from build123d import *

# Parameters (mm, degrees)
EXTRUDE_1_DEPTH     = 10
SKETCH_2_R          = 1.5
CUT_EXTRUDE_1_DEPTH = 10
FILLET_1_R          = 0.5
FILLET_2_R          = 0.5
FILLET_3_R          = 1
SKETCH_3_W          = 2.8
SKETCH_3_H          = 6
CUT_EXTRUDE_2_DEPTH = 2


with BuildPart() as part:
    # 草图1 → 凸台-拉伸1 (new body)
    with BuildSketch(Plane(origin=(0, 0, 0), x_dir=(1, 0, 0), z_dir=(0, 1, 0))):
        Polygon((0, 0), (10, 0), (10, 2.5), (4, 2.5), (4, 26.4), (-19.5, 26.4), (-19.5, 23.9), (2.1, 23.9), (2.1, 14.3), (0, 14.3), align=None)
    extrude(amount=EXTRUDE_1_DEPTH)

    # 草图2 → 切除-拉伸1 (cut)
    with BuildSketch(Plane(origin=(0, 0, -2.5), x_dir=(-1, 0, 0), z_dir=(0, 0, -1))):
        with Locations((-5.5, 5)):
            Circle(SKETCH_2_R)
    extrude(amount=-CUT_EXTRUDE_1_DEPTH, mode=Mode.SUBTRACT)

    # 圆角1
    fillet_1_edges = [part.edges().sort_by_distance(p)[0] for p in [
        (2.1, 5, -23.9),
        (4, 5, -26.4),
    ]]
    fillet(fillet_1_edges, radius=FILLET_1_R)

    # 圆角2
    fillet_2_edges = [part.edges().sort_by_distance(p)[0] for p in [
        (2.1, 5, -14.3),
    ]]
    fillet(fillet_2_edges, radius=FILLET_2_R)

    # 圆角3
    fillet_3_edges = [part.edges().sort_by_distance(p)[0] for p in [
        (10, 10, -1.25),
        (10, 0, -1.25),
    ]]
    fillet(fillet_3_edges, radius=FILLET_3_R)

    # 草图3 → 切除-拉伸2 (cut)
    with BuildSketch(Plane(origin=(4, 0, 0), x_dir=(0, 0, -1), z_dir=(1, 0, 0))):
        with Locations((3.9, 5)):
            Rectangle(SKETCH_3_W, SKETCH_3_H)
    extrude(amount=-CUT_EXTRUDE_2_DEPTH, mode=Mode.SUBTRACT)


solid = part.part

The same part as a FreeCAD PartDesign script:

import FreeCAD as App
import Part
import Sketcher
Q = App.Units.Quantity


def edges_at(feature, points):
    """Names of the edges that pass closest to the given points."""
    edges = feature.Shape.Edges
    near = lambda p: min(range(len(edges)), key=lambda i: edges[i].distToShape(Part.Vertex(*p))[0])
    return sorted({f"Edge{near(p) + 1}" for p in points})

doc = App.newDocument("Part")
body = doc.addObject("PartDesign::Body", "Body")

sketch1 = doc.addObject("Sketcher::SketchObject", "Sketch")
body.addObject(sketch1)
sketch1.AttachmentSupport = (doc.XZ_Plane, [""])
sketch1.MapMode = "FlatFace"
sketch1.addGeometry([
    Part.LineSegment(App.Vector(0, 0, 0), App.Vector(10, 0, 0)),
    Part.LineSegment(App.Vector(10, 0, 0), App.Vector(10, -2.5, 0)),
    Part.LineSegment(App.Vector(10, -2.5, 0), App.Vector(4, -2.5, 0)),
    Part.LineSegment(App.Vector(4, -2.5, 0), App.Vector(4, -26.4, 0)),
    Part.LineSegment(App.Vector(4, -26.4, 0), App.Vector(-19.5, -26.4, 0)),
    Part.LineSegment(App.Vector(-19.5, -26.4, 0), App.Vector(-19.5, -23.9, 0)),
    Part.LineSegment(App.Vector(-19.5, -23.9, 0), App.Vector(2.1, -23.9, 0)),
    Part.LineSegment(App.Vector(2.1, -23.9, 0), App.Vector(2.1, -14.3, 0)),
    Part.LineSegment(App.Vector(2.1, -14.3, 0), App.Vector(0, -14.3, 0)),
    Part.LineSegment(App.Vector(0, -14.3, 0), App.Vector(0, 0, 0)),
], False)
sketch1.addConstraint([
    Sketcher.Constraint("Coincident", 0, 2, 1, 1),
    Sketcher.Constraint("Coincident", 1, 2, 2, 1),
    Sketcher.Constraint("Coincident", 2, 2, 3, 1),
    Sketcher.Constraint("Coincident", 3, 2, 4, 1),
    Sketcher.Constraint("Coincident", 4, 2, 5, 1),
    Sketcher.Constraint("Coincident", 5, 2, 6, 1),
    Sketcher.Constraint("Coincident", 6, 2, 7, 1),
    Sketcher.Constraint("Coincident", 7, 2, 8, 1),
    Sketcher.Constraint("Coincident", 8, 2, 9, 1),
    Sketcher.Constraint("Coincident", 9, 2, 0, 1),
    Sketcher.Constraint("Horizontal", 0),
    Sketcher.Constraint("Vertical", 1),
    Sketcher.Constraint("Horizontal", 2),
    Sketcher.Constraint("Vertical", 3),
    Sketcher.Constraint("Horizontal", 4),
    Sketcher.Constraint("Vertical", 5),
    Sketcher.Constraint("Horizontal", 6),
    Sketcher.Constraint("Vertical", 7),
    Sketcher.Constraint("Horizontal", 8),
    Sketcher.Constraint("Vertical", 9),
    Sketcher.Constraint("Coincident", 9, 2, -1, 1),
    Sketcher.Constraint("Equal", 1, 5),
    Sketcher.Constraint("DistanceX", 0, 1, 0, 2, Q("10 mm")),
    Sketcher.Constraint("DistanceX", 2, 2, 2, 1, Q("6 mm")),
    Sketcher.Constraint("DistanceX", 4, 2, 4, 1, Q("23.5 mm")),
    Sketcher.Constraint("DistanceX", 6, 1, 6, 2, Q("21.6 mm")),
    Sketcher.Constraint("DistanceY", 1, 2, 1, 1, Q("2.5 mm")),
    Sketcher.Constraint("DistanceY", 3, 2, 3, 1, Q("23.9 mm")),
    Sketcher.Constraint("DistanceY", 7, 1, 7, 2, Q("9.6 mm")),
])
pad1 = doc.addObject("PartDesign::Pad", "Pad")
body.addObject(pad1)
pad1.Profile = sketch1
pad1.Length = 10
pad1.Reversed = True

sketch2 = doc.addObject("Sketcher::SketchObject", "Sketch001")
body.addObject(sketch2)
sketch2.AttachmentSupport = (doc.XY_Plane, [""])
sketch2.MapMode = "FlatFace"
sketch2.AttachmentOffset = App.Placement(App.Vector(0, 0, -2.5), App.Rotation())
sketch2.addGeometry(Part.Circle(App.Vector(5.5, 5, 0), App.Vector(0, 0, 1), 1.5), False)
sketch2.addConstraint([
    Sketcher.Constraint("Diameter", 0, Q("3 mm")),
    Sketcher.Constraint("DistanceY", -1, 1, 0, 3, Q("5 mm")),
    Sketcher.Constraint("DistanceX", -1, 1, 0, 3, Q("5.5 mm")),
])
pocket1 = doc.addObject("PartDesign::Pocket", "Pocket")
body.addObject(pocket1)
pocket1.Profile = sketch2
pocket1.Length = 10
pocket1.Reversed = True
doc.recompute()

fillet = doc.addObject("PartDesign::Fillet", "Fillet")
body.addObject(fillet)
fillet.Base = (pocket1, edges_at(pocket1, [(2.1, 5, -23.9), (4, 5, -26.4)]))
fillet.Radius = 0.5
doc.recompute()

fillet2 = doc.addObject("PartDesign::Fillet", "Fillet001")
body.addObject(fillet2)
fillet2.Base = (fillet, edges_at(fillet, [(2.1, 5, -14.3)]))
fillet2.Radius = 0.5
doc.recompute()

fillet3 = doc.addObject("PartDesign::Fillet", "Fillet002")
body.addObject(fillet3)
fillet3.Base = (fillet2, edges_at(fillet2, [(10, 10, -1.25), (10, 0, -1.25)]))
fillet3.Radius = 1

sketch3 = doc.addObject("Sketcher::SketchObject", "Sketch002")
body.addObject(sketch3)
sketch3.AttachmentSupport = (doc.YZ_Plane, [""])
sketch3.MapMode = "FlatFace"
sketch3.AttachmentOffset = App.Placement(App.Vector(0, 0, 4), App.Rotation())
sketch3.addGeometry([
    Part.LineSegment(App.Vector(8, -2.5, 0), App.Vector(2, -2.5, 0)),
    Part.LineSegment(App.Vector(2, -2.5, 0), App.Vector(2, -5.3, 0)),
    Part.LineSegment(App.Vector(2, -5.3, 0), App.Vector(8, -5.3, 0)),
    Part.LineSegment(App.Vector(8, -5.3, 0), App.Vector(8, -2.5, 0)),
], False)
sketch3.addConstraint([
    Sketcher.Constraint("Coincident", 0, 2, 1, 1),
    Sketcher.Constraint("Coincident", 1, 2, 2, 1),
    Sketcher.Constraint("Coincident", 2, 2, 3, 1),
    Sketcher.Constraint("Coincident", 3, 2, 0, 1),
    Sketcher.Constraint("Horizontal", 0),
    Sketcher.Constraint("Vertical", 1),
    Sketcher.Constraint("Horizontal", 2),
    Sketcher.Constraint("Vertical", 3),
    Sketcher.Constraint("DistanceX", 0, 2, 0, 1, Q("6 mm")),
    Sketcher.Constraint("DistanceY", 1, 2, 1, 1, Q("2.8 mm")),
    Sketcher.Constraint("DistanceX", -1, 1, 0, 2, Q("2 mm")),
    Sketcher.Constraint("DistanceY", 0, 2, -1, 1, Q("2.5 mm")),
])
pocket2 = doc.addObject("PartDesign::Pocket", "Pocket001")
body.addObject(pocket2)
pocket2.Profile = sketch3
pocket2.Length = 2

doc.recompute()
